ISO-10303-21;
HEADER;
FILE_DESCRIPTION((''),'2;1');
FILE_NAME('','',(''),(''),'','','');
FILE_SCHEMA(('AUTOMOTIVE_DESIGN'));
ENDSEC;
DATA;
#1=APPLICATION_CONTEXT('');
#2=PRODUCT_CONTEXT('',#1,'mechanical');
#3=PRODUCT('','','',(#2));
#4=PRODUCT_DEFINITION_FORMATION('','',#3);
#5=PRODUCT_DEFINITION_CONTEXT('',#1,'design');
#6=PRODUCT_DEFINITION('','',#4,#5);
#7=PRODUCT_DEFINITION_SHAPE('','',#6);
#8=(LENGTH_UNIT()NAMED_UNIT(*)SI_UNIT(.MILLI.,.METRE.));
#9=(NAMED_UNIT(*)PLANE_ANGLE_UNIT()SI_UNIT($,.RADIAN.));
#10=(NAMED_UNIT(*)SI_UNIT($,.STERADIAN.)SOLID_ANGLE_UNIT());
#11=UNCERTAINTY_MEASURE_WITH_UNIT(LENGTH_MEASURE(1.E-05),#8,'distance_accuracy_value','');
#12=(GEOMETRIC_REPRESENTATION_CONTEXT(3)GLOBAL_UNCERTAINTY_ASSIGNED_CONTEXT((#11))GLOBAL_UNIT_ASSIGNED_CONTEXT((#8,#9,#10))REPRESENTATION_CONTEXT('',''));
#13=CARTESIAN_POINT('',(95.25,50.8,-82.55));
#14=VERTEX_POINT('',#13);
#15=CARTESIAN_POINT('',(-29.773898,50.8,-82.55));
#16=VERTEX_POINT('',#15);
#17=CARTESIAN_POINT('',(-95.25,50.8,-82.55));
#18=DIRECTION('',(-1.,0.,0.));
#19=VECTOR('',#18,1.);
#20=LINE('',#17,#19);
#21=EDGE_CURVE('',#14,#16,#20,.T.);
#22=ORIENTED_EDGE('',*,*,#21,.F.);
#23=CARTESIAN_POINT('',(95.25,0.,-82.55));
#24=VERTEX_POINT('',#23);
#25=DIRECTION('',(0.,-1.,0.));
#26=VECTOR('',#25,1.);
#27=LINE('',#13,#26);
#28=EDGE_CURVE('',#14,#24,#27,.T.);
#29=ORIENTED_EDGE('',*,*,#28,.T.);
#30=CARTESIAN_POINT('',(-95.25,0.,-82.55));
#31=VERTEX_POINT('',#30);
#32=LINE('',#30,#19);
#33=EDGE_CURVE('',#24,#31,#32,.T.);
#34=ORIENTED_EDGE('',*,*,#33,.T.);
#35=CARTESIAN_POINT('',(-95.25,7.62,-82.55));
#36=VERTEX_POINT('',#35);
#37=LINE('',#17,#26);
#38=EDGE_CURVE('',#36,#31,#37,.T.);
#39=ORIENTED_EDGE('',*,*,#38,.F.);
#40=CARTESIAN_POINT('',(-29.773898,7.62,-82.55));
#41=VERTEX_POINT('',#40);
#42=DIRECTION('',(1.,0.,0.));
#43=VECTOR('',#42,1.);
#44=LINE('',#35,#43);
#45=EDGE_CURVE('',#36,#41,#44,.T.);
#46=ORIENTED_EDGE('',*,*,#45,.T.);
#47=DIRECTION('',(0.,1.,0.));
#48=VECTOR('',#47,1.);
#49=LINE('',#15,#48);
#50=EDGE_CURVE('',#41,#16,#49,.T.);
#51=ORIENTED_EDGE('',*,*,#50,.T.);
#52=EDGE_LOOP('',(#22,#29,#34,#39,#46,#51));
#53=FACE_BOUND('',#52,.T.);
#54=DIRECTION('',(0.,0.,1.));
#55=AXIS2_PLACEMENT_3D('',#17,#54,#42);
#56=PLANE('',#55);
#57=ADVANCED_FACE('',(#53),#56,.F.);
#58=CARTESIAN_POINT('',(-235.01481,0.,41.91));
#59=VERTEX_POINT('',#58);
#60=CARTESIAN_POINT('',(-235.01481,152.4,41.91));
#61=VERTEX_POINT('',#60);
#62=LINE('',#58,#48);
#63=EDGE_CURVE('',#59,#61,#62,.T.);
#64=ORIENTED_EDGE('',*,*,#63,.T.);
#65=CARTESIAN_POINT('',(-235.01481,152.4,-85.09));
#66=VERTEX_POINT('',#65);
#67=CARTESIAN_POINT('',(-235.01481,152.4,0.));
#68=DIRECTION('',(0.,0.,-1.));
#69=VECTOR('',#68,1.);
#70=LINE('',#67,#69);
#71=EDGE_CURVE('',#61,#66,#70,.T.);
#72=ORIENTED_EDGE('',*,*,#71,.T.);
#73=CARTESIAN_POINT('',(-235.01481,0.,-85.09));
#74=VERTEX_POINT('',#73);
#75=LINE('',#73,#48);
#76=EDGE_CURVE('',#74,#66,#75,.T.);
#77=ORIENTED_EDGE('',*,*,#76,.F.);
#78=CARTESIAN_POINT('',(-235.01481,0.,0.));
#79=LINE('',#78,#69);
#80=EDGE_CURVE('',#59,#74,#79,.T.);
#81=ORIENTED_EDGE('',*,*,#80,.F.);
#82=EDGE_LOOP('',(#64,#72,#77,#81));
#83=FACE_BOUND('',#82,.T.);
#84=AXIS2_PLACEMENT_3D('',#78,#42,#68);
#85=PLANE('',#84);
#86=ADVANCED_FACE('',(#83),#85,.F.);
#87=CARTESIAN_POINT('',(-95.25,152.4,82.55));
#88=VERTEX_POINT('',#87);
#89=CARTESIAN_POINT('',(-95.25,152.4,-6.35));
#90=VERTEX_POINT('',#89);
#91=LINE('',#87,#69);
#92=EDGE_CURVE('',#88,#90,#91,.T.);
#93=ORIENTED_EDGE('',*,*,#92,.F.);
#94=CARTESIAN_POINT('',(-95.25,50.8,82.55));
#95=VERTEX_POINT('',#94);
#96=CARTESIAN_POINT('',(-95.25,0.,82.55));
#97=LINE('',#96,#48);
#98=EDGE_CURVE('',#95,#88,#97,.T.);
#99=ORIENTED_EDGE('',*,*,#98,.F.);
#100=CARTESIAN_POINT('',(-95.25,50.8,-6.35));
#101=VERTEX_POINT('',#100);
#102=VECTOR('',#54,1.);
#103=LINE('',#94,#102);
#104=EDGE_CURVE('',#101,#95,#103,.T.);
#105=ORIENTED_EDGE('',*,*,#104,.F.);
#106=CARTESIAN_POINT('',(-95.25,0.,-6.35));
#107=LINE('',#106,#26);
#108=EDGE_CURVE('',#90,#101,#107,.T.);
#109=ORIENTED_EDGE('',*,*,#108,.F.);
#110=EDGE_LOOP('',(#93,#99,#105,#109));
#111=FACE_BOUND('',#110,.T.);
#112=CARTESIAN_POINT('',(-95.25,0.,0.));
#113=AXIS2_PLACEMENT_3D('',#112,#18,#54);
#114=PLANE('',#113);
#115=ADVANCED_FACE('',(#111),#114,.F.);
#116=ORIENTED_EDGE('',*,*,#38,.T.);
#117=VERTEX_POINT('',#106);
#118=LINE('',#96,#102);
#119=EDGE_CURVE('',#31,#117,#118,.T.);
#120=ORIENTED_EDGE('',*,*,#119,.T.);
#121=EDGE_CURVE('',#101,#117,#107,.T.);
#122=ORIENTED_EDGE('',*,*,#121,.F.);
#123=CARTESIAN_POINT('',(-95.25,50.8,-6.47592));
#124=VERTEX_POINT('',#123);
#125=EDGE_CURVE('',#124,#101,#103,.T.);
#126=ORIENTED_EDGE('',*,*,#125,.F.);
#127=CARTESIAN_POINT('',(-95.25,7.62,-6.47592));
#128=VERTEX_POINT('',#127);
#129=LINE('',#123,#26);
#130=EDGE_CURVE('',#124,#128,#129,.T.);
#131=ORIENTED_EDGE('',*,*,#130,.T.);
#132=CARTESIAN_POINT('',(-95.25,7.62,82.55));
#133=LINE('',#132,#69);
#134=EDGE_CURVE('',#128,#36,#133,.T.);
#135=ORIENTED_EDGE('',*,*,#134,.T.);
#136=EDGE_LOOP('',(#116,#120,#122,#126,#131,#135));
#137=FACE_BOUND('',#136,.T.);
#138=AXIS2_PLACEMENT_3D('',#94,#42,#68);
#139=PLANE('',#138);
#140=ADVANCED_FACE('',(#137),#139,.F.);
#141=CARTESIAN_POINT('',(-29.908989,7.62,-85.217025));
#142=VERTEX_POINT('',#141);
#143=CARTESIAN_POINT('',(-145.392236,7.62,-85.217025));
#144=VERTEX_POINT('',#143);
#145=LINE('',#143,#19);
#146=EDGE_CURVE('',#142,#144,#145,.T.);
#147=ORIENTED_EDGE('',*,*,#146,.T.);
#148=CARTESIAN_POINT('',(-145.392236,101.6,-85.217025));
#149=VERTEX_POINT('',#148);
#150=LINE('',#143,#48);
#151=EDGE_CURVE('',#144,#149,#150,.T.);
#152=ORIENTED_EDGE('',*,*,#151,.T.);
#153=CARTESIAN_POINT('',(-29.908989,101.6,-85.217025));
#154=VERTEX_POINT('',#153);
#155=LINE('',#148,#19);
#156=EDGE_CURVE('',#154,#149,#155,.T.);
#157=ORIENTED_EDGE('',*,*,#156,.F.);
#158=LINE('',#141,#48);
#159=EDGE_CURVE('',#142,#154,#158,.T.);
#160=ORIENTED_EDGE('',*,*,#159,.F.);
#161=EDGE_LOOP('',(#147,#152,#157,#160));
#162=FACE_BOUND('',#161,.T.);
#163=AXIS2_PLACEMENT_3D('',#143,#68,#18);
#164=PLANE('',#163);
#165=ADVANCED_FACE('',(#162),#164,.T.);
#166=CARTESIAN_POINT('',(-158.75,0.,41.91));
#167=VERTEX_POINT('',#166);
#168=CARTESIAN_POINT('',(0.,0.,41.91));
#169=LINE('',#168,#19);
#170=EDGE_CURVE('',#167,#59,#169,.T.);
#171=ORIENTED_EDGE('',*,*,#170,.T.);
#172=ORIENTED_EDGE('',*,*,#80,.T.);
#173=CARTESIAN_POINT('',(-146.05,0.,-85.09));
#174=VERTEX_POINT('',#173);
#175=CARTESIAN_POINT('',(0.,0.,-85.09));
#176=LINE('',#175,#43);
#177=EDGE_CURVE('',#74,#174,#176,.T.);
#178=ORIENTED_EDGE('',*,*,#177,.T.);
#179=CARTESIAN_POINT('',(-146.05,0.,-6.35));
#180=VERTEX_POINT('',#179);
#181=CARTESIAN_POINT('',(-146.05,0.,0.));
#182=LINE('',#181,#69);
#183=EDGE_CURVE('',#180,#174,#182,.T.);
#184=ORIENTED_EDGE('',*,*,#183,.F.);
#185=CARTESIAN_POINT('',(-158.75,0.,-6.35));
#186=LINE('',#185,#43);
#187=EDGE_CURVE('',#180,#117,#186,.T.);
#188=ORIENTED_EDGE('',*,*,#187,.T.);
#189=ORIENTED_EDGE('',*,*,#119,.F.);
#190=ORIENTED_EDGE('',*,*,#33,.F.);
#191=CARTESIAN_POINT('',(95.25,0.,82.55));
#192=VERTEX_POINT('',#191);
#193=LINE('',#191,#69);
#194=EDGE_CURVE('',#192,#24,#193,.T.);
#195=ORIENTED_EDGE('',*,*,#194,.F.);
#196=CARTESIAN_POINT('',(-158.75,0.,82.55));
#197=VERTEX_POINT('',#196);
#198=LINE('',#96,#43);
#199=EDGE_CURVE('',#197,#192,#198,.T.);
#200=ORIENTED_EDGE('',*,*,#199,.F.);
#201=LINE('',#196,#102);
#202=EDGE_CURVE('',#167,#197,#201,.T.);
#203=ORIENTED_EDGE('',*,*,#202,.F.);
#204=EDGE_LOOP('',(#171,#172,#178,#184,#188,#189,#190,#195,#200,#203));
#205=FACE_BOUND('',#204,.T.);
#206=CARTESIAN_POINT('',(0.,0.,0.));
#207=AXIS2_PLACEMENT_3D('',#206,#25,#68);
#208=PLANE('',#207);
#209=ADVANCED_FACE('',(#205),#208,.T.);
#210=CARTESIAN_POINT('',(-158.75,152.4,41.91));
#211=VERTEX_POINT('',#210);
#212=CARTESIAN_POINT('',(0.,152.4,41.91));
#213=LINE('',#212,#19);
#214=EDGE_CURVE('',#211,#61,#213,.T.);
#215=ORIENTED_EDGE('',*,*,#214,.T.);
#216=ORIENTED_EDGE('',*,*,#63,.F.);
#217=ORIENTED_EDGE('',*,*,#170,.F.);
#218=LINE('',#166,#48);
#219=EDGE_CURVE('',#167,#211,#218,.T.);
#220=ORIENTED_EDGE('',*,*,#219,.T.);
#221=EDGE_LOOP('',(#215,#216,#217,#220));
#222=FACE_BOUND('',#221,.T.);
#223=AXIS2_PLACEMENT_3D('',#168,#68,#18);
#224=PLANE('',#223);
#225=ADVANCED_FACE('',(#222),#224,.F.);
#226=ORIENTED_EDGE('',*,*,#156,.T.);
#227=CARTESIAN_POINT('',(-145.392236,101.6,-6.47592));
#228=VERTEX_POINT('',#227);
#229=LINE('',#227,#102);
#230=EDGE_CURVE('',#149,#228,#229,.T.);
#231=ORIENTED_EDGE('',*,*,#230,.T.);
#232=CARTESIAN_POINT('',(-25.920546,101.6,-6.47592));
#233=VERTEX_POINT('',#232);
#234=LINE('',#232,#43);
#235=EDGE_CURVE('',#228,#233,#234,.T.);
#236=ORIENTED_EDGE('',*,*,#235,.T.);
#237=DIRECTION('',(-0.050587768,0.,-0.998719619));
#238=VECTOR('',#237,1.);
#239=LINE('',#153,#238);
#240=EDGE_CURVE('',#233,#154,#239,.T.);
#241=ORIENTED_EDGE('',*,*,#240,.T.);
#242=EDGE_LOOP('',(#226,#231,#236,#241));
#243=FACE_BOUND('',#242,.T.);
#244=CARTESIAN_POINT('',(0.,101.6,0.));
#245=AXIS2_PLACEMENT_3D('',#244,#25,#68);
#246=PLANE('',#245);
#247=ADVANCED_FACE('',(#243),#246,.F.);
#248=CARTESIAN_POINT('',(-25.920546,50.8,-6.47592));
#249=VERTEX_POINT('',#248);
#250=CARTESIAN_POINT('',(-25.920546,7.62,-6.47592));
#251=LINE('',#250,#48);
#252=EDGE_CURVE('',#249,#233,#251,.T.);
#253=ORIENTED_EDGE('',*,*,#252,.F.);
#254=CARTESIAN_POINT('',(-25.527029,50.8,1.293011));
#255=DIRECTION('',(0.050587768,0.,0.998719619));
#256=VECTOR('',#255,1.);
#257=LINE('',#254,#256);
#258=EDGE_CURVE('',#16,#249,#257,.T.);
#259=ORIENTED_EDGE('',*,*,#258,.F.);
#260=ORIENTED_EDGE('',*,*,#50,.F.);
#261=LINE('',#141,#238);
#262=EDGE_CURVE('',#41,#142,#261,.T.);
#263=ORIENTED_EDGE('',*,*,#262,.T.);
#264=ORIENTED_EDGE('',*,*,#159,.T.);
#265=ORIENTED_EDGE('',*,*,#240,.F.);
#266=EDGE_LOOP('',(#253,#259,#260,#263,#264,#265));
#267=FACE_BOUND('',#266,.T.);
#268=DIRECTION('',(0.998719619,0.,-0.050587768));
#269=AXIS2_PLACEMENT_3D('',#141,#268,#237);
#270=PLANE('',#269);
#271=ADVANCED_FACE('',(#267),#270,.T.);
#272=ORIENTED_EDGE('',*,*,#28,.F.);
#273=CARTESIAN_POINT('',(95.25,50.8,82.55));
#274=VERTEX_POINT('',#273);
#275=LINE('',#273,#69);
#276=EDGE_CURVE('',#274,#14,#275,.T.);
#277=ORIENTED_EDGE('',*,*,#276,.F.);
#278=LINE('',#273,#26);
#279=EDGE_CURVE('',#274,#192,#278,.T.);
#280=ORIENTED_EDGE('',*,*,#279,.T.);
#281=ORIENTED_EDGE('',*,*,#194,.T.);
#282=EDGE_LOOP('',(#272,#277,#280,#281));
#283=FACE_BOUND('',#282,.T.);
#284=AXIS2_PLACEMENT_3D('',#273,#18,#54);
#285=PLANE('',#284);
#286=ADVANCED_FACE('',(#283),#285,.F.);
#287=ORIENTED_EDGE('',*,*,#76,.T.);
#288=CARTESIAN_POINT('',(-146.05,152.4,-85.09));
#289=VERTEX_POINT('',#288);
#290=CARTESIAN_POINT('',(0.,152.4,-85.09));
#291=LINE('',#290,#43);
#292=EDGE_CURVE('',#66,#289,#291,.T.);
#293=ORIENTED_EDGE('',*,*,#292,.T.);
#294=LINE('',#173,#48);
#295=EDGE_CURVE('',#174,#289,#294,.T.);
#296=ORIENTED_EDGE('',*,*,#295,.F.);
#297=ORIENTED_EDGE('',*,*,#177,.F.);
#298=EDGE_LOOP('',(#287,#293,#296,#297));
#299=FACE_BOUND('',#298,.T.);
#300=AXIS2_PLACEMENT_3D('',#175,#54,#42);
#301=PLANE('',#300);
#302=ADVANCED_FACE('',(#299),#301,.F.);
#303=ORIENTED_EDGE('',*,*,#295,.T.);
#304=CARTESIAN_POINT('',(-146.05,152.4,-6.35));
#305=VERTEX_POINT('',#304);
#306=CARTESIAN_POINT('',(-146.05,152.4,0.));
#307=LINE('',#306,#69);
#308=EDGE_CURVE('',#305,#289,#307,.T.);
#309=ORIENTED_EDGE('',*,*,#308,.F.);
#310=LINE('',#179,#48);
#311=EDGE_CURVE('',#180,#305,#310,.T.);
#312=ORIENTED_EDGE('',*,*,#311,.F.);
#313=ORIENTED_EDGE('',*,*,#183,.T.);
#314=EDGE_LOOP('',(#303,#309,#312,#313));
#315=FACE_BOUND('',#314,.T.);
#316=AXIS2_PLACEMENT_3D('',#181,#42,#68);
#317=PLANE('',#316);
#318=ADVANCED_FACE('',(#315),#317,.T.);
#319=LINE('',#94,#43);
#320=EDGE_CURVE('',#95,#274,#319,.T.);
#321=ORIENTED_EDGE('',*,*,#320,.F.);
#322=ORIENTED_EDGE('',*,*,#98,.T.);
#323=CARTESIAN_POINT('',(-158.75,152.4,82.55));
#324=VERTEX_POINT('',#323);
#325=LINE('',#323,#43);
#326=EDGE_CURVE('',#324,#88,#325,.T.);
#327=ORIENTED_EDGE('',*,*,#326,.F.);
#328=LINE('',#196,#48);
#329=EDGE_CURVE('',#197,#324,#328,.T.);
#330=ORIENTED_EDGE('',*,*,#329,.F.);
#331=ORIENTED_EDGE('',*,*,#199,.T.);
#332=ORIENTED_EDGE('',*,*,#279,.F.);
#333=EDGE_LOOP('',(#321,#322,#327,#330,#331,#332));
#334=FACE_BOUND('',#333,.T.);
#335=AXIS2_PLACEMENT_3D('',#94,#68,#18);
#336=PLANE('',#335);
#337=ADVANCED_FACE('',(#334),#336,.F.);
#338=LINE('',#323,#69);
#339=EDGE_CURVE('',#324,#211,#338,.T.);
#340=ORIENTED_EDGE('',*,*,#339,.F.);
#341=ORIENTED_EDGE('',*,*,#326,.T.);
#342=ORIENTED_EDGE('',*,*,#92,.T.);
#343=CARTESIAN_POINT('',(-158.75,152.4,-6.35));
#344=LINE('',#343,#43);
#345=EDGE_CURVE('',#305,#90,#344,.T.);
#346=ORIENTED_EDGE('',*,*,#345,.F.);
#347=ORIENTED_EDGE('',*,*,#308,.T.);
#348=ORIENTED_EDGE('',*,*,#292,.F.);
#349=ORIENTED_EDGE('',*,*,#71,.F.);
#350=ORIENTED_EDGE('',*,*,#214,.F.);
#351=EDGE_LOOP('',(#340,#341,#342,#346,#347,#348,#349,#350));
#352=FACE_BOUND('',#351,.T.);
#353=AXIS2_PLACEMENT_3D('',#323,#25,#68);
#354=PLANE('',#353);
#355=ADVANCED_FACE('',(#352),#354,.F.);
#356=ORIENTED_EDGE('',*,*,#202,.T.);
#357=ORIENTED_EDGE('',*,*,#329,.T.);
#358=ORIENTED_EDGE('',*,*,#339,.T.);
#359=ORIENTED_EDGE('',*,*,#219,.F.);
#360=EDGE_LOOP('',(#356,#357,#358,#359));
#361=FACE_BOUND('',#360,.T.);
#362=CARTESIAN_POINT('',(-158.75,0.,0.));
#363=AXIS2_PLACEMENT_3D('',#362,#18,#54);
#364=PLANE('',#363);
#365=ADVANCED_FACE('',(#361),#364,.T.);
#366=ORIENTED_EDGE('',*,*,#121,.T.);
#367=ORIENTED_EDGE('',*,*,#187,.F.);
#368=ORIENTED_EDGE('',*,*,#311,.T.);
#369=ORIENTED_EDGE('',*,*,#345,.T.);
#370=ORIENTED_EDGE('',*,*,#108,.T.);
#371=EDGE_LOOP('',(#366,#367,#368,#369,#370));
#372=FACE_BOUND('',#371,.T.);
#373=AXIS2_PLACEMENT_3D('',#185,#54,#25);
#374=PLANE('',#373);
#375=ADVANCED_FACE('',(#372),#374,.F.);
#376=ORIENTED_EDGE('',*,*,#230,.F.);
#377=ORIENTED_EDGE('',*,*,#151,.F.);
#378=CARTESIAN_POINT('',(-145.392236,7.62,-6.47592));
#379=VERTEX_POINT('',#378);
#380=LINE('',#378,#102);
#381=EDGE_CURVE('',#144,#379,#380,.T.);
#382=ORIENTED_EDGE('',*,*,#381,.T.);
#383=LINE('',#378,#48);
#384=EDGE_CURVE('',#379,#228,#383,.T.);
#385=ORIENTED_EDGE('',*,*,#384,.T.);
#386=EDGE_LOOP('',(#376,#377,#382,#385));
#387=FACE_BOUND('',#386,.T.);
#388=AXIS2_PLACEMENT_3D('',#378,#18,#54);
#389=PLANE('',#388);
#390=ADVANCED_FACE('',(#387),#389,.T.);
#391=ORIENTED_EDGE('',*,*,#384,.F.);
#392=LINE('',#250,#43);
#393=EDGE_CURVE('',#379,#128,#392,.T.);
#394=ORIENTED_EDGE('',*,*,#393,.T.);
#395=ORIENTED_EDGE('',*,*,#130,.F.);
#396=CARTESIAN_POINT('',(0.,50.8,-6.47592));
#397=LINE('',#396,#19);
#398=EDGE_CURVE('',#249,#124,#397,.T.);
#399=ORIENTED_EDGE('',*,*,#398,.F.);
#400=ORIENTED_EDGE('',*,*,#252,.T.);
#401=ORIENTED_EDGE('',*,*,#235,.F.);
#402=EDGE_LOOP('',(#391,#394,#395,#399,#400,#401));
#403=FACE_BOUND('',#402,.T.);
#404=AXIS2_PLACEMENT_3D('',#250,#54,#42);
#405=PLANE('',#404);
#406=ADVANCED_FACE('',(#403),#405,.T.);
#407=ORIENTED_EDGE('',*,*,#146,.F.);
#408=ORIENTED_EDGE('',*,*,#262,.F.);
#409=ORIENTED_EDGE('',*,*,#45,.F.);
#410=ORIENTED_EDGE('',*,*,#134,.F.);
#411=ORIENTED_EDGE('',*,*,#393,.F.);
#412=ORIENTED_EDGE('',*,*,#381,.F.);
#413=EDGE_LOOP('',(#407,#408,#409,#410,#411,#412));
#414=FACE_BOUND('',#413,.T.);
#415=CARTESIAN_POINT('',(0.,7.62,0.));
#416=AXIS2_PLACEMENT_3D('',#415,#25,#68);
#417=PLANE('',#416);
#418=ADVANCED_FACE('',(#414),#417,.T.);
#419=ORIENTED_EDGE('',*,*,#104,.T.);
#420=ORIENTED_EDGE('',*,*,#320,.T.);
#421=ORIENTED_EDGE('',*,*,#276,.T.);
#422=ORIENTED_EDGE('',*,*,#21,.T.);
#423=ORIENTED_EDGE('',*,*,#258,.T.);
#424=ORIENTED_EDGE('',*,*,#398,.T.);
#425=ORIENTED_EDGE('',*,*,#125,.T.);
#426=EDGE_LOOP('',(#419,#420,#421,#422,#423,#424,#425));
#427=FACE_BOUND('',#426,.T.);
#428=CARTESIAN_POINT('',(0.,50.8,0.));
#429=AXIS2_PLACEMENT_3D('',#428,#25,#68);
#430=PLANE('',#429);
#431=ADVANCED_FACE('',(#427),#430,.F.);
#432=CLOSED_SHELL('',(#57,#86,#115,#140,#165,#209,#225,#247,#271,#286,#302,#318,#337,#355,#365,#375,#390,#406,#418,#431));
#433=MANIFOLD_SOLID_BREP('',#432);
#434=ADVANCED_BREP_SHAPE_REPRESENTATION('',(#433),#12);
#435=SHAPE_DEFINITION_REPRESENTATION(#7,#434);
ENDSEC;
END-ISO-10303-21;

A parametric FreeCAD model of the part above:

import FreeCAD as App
import Part
import Sketcher

V = App.Vector
Q = App.Units.Quantity

doc = App.newDocument("Part")
body = doc.addObject("PartDesign::Body", "Body")

# Sketch on XZ plane
sketch1 = body.newObject("Sketcher::SketchObject", "Sketch")
sketch1.AttachmentSupport = (doc.getObject("XZ_Plane"), [""])
sketch1.MapMode = "FlatFace"
sketch1.addGeometry([
    Part.LineSegment(V(-95, -83, 0), V(-95, 83, 0)),
    Part.LineSegment(V(-95, 83, 0), V(95, 83, 0)),
    Part.LineSegment(V(95, 83, 0), V(95, -83, 0)),
    Part.LineSegment(V(95, -83, 0), V(-95, -83, 0)),
], False)
sketch1.addConstraint([
    Sketcher.Constraint("Coincident", 0, 2, 1, 1),
    Sketcher.Constraint("Coincident", 1, 2, 2, 1),
    Sketcher.Constraint("Coincident", 2, 2, 3, 1),
    Sketcher.Constraint("Coincident", 3, 2, 0, 1),
    Sketcher.Constraint("Vertical", 0),
    Sketcher.Constraint("Horizontal", 1),
    Sketcher.Constraint("Vertical", 2),
    Sketcher.Constraint("Horizontal", 3),
    Sketcher.Constraint("Symmetric", 0, 2, 2, 2, -1, 1),
    Sketcher.Constraint("DistanceX", 1, 1, 1, 2, Q("7.5 in")),
    Sketcher.Constraint("DistanceY", 0, 1, 0, 2, Q("6.5 in")),
])
pad1 = body.newObject("PartDesign::Pad", "Pad")
pad1.Profile = sketch1
pad1.Length = Q("2 in")
pad1.Reversed = True

# Sketch on YZ plane
sketch2 = body.newObject("Sketcher::SketchObject", "Sketch001")
sketch2.AttachmentSupport = (doc.getObject("YZ_Plane"), [""])
sketch2.MapMode = "FlatFace"
sketch2.AttachmentOffset = App.Placement(V(0, 0, -3.75 * 25.4), App.Rotation())
sketch2.addGeometry([
    Part.LineSegment(V(152, -6, 0), V(0, -6, 0)),
    Part.LineSegment(V(0, -6, 0), V(0, 83, 0)),
    Part.LineSegment(V(0, 83, 0), V(152, 83, 0)),
    Part.LineSegment(V(152, 83, 0), V(152, -6, 0)),
], False)
sketch2.addConstraint([
    Sketcher.Constraint("Coincident", 0, 2, 1, 1),
    Sketcher.Constraint("Coincident", 1, 2, 2, 1),
    Sketcher.Constraint("Coincident", 2, 2, 3, 1),
    Sketcher.Constraint("Coincident", 3, 2, 0, 1),
    Sketcher.Constraint("Horizontal", 0),
    Sketcher.Constraint("Vertical", 1),
    Sketcher.Constraint("Horizontal", 2),
    Sketcher.Constraint("Vertical", 3),
    Sketcher.Constraint("PointOnObject", 0, 2, -2),
    Sketcher.Constraint("DistanceX", 0, 2, 0, 1, Q("6 in")),
    Sketcher.Constraint("DistanceY", 1, 1, 1, 2, Q("3.5 in")),
    Sketcher.Constraint("DistanceY", 0, 2, -1, 1, Q("0.25 in")),
])
pad2 = body.newObject("PartDesign::Pad", "Pad001")
pad2.Profile = sketch2
pad2.Length = Q("2.5 in")
pad2.Reversed = True

# Sketch on XZ plane
sketch3 = body.newObject("Sketcher::SketchObject", "Sketch002")
sketch3.AttachmentSupport = (doc.getObject("XZ_Plane"), [""])
sketch3.MapMode = "FlatFace"
sketch3.AttachmentOffset = App.Placement(V(0, 0, -6 * 25.4), App.Rotation())
sketch3.addGeometry([
    Part.LineSegment(V(-159, -6, 0), V(-146, -6, 0)),  # 0
    Part.LineSegment(V(-146, -6, 0), V(-146, -85, 0)),  # 1
    Part.LineSegment(V(-146, -85, 0), V(-235, -85, 0)),  # 2
    Part.LineSegment(V(-235, -85, 0), V(-235, 42, 0)),  # 3
    Part.LineSegment(V(-235, 42, 0), V(-159, 42, 0)),  # 4
    Part.LineSegment(V(-159, 42, 0), V(-159, -6, 0)),  # 5
], False)
sketch3.addConstraint([
    Sketcher.Constraint("Coincident", 0, 2, 1, 1),
    Sketcher.Constraint("Coincident", 1, 2, 2, 1),
    Sketcher.Constraint("Coincident", 2, 2, 3, 1),
    Sketcher.Constraint("Coincident", 3, 2, 4, 1),
    Sketcher.Constraint("Coincident", 4, 2, 5, 1),
    Sketcher.Constraint("Coincident", 5, 2, 0, 1),
    Sketcher.Constraint("Horizontal", 0),
    Sketcher.Constraint("Vertical", 1),
    Sketcher.Constraint("Horizontal", 2),
    Sketcher.Constraint("Vertical", 3),
    Sketcher.Constraint("Horizontal", 4),
    Sketcher.Constraint("Vertical", 5),
    Sketcher.Constraint("DistanceY", 3, 1, 3, 2, Q("5 in")),
    Sketcher.Constraint("DistanceX", 0, 1, 0, 2, Q("0.5 in")),
    Sketcher.Constraint("DistanceY", 1, 2, 1, 1, Q("3.1 in")),
    Sketcher.Constraint("DistanceX", 0, 2, -1, 1, Q("5.75 in")),
    Sketcher.Constraint("DistanceY", 0, 2, -1, 1, Q("0.25 in")),
    Sketcher.Constraint("DistanceX", 2, 2, 2, 1, Q("88.96481 mm")),
])
pad3 = body.newObject("PartDesign::Pad", "Pad002")
pad3.Profile = sketch3
pad3.Length = Q("6 in")

# Sketch on XZ plane
sketch4 = body.newObject("Sketcher::SketchObject", "Sketch003")
sketch4.AttachmentSupport = (doc.getObject("XZ_Plane"), [""])
sketch4.MapMode = "FlatFace"
sketch4.AttachmentOffset = App.Placement(V(0, 0, -4 * 25.4), App.Rotation())
sketch4.addGeometry([
    Part.LineSegment(V(-145, -85, 0), V(-145, -6, 0)),
    Part.LineSegment(V(-145, -6, 0), V(-26, -6, 0)),
    Part.LineSegment(V(-26, -6, 0), V(-30, -85, 0)),
    Part.LineSegment(V(-30, -85, 0), V(-145, -85, 0)),
], False)
sketch4.addConstraint([
    Sketcher.Constraint("Coincident", 0, 2, 1, 1),
    Sketcher.Constraint("Coincident", 1, 2, 2, 1),
    Sketcher.Constraint("Coincident", 2, 2, 3, 1),
    Sketcher.Constraint("Coincident", 3, 2, 0, 1),
    Sketcher.Constraint("Vertical", 0),
    Sketcher.Constraint("Horizontal", 1),
    Sketcher.Constraint("Horizontal", 3),
    Sketcher.Constraint("DistanceX", 1, 1, 1, 2, Q("119.47169 mm")),
    Sketcher.Constraint("DistanceX", 3, 2, 3, 1, Q("115.483246 mm")),
    Sketcher.Constraint("DistanceY", 0, 1, 0, 2, Q("78.741105 mm")),
    Sketcher.Constraint("DistanceY", 0, 2, -1, 1, Q("6.47592 mm")),
    Sketcher.Constraint("DistanceX", 2, 2, -1, 1, Q("29.908989 mm")),
])
pad4 = body.newObject("PartDesign::Pad", "Pad003")
pad4.Profile = sketch4
pad4.Length = Q("3.7 in")

doc.recompute()
